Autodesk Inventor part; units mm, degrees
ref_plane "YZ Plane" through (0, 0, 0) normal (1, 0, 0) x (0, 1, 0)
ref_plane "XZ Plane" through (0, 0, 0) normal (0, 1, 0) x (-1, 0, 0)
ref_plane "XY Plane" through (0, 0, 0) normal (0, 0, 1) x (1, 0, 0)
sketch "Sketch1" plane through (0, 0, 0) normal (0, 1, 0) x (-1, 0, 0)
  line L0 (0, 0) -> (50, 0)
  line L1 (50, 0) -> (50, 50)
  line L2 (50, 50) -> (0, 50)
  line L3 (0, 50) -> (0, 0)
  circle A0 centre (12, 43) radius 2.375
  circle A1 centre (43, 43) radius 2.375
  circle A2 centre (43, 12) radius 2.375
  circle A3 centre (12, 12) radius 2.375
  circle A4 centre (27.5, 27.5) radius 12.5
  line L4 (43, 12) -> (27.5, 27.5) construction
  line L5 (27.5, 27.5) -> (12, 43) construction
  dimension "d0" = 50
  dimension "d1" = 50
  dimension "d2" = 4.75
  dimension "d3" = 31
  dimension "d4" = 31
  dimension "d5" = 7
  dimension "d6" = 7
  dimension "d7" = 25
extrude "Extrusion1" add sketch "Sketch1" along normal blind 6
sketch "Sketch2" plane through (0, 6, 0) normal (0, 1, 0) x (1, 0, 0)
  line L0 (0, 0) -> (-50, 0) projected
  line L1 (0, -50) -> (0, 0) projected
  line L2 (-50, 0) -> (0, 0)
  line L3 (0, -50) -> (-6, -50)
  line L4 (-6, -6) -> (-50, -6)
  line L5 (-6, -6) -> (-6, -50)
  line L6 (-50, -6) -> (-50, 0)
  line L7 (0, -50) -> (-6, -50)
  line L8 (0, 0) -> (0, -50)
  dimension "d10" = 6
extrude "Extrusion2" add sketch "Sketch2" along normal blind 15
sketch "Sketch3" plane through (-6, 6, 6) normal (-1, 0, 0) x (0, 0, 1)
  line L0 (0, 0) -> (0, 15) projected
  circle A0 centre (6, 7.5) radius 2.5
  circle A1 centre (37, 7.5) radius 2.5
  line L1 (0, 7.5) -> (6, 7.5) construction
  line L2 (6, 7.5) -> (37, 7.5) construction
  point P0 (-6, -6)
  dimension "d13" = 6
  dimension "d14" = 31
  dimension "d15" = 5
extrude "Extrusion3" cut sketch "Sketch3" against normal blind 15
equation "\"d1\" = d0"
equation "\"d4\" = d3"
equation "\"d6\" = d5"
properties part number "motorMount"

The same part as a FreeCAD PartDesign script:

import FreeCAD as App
import Part
import Sketcher
from FreeCAD import Vector

doc = App.newDocument("Part")
body = doc.addObject("PartDesign::Body", "Body")

sketch1 = doc.addObject("Sketcher::SketchObject", "Sketch")
body.addObject(sketch1)
sketch1.AttachmentSupport = (doc.XZ_Plane, [""])
sketch1.MapMode = "FlatFace"
sketch1.addGeometry(Part.LineSegment(Vector(0, 50, 0), Vector(0, 0, 0)), False)
sketch1.addGeometry(Part.LineSegment(Vector(0, 0, 0), Vector(-50, 0, 0)), False)
sketch1.addGeometry(Part.LineSegment(Vector(-50, 0, 0), Vector(-50, 50, 0)), False)
sketch1.addGeometry(Part.LineSegment(Vector(-50, 50, 0), Vector(0, 50, 0)), False)
sketch1.addGeometry(Part.Circle(Vector(-12, 12, 0), Vector(0, 0, 1), 2.4), False)
sketch1.addGeometry(Part.Circle(Vector(-43, 12, 0), Vector(0, 0, 1), 2.4), False)
sketch1.addGeometry(Part.Circle(Vector(-12, 43, 0), Vector(0, 0, 1), 2.4), False)
sketch1.addGeometry(Part.Circle(Vector(-27.5, 27.5, 0), Vector(0, 0, 1), 12.5), False)
sketch1.addGeometry(Part.Circle(Vector(-43, 43, 0), Vector(0, 0, 1), 2.4), False)
sketch1.addConstraint(Sketcher.Constraint("Coincident", 0, 2, 1, 1))
sketch1.addConstraint(Sketcher.Constraint("Coincident", 1, 2, 2, 1))
sketch1.addConstraint(Sketcher.Constraint("Coincident", 2, 2, 3, 1))
sketch1.addConstraint(Sketcher.Constraint("Coincident", 3, 2, 0, 1))
sketch1.addConstraint(Sketcher.Constraint("Vertical", 0))
sketch1.addConstraint(Sketcher.Constraint("Horizontal", 1))
sketch1.addConstraint(Sketcher.Constraint("Vertical", 2))
sketch1.addConstraint(Sketcher.Constraint("Horizontal", 3))
sketch1.addConstraint(Sketcher.Constraint("Coincident", 0, 2, -1, 1))
sketch1.addConstraint(Sketcher.Constraint("Equal", 4, 5))
sketch1.addConstraint(Sketcher.Constraint("Equal", 5, 6))
sketch1.addConstraint(Sketcher.Constraint("Equal", 6, 8))
sketch1.addConstraint(Sketcher.Constraint("Horizontal", 4, 3, 5, 3))
sketch1.addConstraint(Sketcher.Constraint("Horizontal", 6, 3, 8, 3))
sketch1.addConstraint(Sketcher.Constraint("Vertical", 4, 3, 6, 3))
sketch1.addConstraint(Sketcher.Constraint("Vertical", 5, 3, 8, 3))
sketch1.addConstraint(Sketcher.Constraint("Equal", 3, 0))
sketch1.addConstraint(Sketcher.Constraint("Diameter", 7, 25.0))
sketch1.addConstraint(Sketcher.Constraint("Diameter", 4, 4.75))
sketch1.addConstraint(Sketcher.Constraint("DistanceX", 1, 2, 1, 1, 50.0))
sketch1.addConstraint(Sketcher.Constraint("DistanceX", 5, 3, 4, 3, 31.0))
sketch1.addConstraint(Sketcher.Constraint("DistanceY", 4, 3, 6, 3, 31.0))
sketch1.addConstraint(Sketcher.Constraint("DistanceX", 1, 2, 5, 3, 7.0))
sketch1.addConstraint(Sketcher.Constraint("DistanceY", 8, 3, 2, 2, 7.0))
sketch1.addConstraint(Sketcher.Constraint("DistanceX", 7, 3, -1, 1, 27.5))
sketch1.addConstraint(Sketcher.Constraint("DistanceY", -1, 1, 7, 3, 27.5))
pad1 = doc.addObject("PartDesign::Pad", "Pad")
body.addObject(pad1)
pad1.Profile = sketch1
pad1.Length = 6
pad1.Reversed = True

sketch2 = doc.addObject("Sketcher::SketchObject", "Sketch001")
body.addObject(sketch2)
sketch2.AttachmentSupport = (doc.XZ_Plane, [""])
sketch2.MapMode = "FlatFace"
sketch2.AttachmentOffset = App.Placement(Vector(0, 0, -6), App.Rotation())
sketch2.addGeometry(Part.LineSegment(Vector(0, 50, 0), Vector(0, 0, 0)), False)
sketch2.addGeometry(Part.LineSegment(Vector(0, 0, 0), Vector(-50, 0, 0)), False)
sketch2.addGeometry(Part.LineSegment(Vector(-50, 0, 0), Vector(-50, 6, 0)), False)
sketch2.addGeometry(Part.LineSegment(Vector(-50, 6, 0), Vector(-6, 6, 0)), False)
sketch2.addGeometry(Part.LineSegment(Vector(-6, 6, 0), Vector(-6, 50, 0)), False)
sketch2.addGeometry(Part.LineSegment(Vector(-6, 50, 0), Vector(0, 50, 0)), False)
sketch2.addConstraint(Sketcher.Constraint("Coincident", 0, 2, 1, 1))
sketch2.addConstraint(Sketcher.Constraint("Coincident", 1, 2, 2, 1))
sketch2.addConstraint(Sketcher.Constraint("Coincident", 2, 2, 3, 1))
sketch2.addConstraint(Sketcher.Constraint("Coincident", 3, 2, 4, 1))
sketch2.addConstraint(Sketcher.Constraint("Coincident", 4, 2, 5, 1))
sketch2.addConstraint(Sketcher.Constraint("Coincident", 5, 2, 0, 1))
sketch2.addConstraint(Sketcher.Constraint("Vertical", 0))
sketch2.addConstraint(Sketcher.Constraint("Horizontal", 1))
sketch2.addConstraint(Sketcher.Constraint("Vertical", 2))
sketch2.addConstraint(Sketcher.Constraint("Horizontal", 3))
sketch2.addConstraint(Sketcher.Constraint("Vertical", 4))
sketch2.addConstraint(Sketcher.Constraint("Horizontal", 5))
sketch2.addConstraint(Sketcher.Constraint("Coincident", 0, 2, -1, 1))
sketch2.addConstraint(Sketcher.Constraint("Equal", 1, 0))
sketch2.addConstraint(Sketcher.Constraint("Equal", 5, 2))
sketch2.addConstraint(Sketcher.Constraint("DistanceX", 5, 1, 5, 2, 6.0))
sketch2.addConstraint(Sketcher.Constraint("DistanceX", 1, 2, 1, 1, 50.0))
pad2 = doc.addObject("PartDesign::Pad", "Pad001")
body.addObject(pad2)
pad2.Profile = sketch2
pad2.Length = 15
pad2.Reversed = True

sketch3 = doc.addObject("Sketcher::SketchObject", "Sketch002")
body.addObject(sketch3)
sketch3.AttachmentSupport = (doc.YZ_Plane, [""])
sketch3.MapMode = "FlatFace"
sketch3.AttachmentOffset = App.Placement(Vector(0, 0, -6), App.Rotation())
sketch3.addGeometry(Part.Circle(Vector(13.5, 12, 0), Vector(0, 0, 1), 2.5), False)
sketch3.addGeometry(Part.Circle(Vector(13.5, 43, 0), Vector(0, 0, 1), 2.5), False)
sketch3.addConstraint(Sketcher.Constraint("Equal", 0, 1))
sketch3.addConstraint(Sketcher.Constraint("Vertical", 0, 3, 1, 3))
sketch3.addConstraint(Sketcher.Constraint("Diameter", 0, 5.0))
sketch3.addConstraint(Sketcher.Constraint("DistanceY", 0, 3, 1, 3, 31.0))
sketch3.addConstraint(Sketcher.Constraint("DistanceY", -1, 1, 0, 3, 12.0))
sketch3.addConstraint(Sketcher.Constraint("DistanceX", -1, 1, 0, 3, 13.5))
pocket1 = doc.addObject("PartDesign::Pocket", "Pocket")
body.addObject(pocket1)
pocket1.Profile = sketch3
pocket1.Length = 15
pocket1.Reversed = True

doc.recompute()
